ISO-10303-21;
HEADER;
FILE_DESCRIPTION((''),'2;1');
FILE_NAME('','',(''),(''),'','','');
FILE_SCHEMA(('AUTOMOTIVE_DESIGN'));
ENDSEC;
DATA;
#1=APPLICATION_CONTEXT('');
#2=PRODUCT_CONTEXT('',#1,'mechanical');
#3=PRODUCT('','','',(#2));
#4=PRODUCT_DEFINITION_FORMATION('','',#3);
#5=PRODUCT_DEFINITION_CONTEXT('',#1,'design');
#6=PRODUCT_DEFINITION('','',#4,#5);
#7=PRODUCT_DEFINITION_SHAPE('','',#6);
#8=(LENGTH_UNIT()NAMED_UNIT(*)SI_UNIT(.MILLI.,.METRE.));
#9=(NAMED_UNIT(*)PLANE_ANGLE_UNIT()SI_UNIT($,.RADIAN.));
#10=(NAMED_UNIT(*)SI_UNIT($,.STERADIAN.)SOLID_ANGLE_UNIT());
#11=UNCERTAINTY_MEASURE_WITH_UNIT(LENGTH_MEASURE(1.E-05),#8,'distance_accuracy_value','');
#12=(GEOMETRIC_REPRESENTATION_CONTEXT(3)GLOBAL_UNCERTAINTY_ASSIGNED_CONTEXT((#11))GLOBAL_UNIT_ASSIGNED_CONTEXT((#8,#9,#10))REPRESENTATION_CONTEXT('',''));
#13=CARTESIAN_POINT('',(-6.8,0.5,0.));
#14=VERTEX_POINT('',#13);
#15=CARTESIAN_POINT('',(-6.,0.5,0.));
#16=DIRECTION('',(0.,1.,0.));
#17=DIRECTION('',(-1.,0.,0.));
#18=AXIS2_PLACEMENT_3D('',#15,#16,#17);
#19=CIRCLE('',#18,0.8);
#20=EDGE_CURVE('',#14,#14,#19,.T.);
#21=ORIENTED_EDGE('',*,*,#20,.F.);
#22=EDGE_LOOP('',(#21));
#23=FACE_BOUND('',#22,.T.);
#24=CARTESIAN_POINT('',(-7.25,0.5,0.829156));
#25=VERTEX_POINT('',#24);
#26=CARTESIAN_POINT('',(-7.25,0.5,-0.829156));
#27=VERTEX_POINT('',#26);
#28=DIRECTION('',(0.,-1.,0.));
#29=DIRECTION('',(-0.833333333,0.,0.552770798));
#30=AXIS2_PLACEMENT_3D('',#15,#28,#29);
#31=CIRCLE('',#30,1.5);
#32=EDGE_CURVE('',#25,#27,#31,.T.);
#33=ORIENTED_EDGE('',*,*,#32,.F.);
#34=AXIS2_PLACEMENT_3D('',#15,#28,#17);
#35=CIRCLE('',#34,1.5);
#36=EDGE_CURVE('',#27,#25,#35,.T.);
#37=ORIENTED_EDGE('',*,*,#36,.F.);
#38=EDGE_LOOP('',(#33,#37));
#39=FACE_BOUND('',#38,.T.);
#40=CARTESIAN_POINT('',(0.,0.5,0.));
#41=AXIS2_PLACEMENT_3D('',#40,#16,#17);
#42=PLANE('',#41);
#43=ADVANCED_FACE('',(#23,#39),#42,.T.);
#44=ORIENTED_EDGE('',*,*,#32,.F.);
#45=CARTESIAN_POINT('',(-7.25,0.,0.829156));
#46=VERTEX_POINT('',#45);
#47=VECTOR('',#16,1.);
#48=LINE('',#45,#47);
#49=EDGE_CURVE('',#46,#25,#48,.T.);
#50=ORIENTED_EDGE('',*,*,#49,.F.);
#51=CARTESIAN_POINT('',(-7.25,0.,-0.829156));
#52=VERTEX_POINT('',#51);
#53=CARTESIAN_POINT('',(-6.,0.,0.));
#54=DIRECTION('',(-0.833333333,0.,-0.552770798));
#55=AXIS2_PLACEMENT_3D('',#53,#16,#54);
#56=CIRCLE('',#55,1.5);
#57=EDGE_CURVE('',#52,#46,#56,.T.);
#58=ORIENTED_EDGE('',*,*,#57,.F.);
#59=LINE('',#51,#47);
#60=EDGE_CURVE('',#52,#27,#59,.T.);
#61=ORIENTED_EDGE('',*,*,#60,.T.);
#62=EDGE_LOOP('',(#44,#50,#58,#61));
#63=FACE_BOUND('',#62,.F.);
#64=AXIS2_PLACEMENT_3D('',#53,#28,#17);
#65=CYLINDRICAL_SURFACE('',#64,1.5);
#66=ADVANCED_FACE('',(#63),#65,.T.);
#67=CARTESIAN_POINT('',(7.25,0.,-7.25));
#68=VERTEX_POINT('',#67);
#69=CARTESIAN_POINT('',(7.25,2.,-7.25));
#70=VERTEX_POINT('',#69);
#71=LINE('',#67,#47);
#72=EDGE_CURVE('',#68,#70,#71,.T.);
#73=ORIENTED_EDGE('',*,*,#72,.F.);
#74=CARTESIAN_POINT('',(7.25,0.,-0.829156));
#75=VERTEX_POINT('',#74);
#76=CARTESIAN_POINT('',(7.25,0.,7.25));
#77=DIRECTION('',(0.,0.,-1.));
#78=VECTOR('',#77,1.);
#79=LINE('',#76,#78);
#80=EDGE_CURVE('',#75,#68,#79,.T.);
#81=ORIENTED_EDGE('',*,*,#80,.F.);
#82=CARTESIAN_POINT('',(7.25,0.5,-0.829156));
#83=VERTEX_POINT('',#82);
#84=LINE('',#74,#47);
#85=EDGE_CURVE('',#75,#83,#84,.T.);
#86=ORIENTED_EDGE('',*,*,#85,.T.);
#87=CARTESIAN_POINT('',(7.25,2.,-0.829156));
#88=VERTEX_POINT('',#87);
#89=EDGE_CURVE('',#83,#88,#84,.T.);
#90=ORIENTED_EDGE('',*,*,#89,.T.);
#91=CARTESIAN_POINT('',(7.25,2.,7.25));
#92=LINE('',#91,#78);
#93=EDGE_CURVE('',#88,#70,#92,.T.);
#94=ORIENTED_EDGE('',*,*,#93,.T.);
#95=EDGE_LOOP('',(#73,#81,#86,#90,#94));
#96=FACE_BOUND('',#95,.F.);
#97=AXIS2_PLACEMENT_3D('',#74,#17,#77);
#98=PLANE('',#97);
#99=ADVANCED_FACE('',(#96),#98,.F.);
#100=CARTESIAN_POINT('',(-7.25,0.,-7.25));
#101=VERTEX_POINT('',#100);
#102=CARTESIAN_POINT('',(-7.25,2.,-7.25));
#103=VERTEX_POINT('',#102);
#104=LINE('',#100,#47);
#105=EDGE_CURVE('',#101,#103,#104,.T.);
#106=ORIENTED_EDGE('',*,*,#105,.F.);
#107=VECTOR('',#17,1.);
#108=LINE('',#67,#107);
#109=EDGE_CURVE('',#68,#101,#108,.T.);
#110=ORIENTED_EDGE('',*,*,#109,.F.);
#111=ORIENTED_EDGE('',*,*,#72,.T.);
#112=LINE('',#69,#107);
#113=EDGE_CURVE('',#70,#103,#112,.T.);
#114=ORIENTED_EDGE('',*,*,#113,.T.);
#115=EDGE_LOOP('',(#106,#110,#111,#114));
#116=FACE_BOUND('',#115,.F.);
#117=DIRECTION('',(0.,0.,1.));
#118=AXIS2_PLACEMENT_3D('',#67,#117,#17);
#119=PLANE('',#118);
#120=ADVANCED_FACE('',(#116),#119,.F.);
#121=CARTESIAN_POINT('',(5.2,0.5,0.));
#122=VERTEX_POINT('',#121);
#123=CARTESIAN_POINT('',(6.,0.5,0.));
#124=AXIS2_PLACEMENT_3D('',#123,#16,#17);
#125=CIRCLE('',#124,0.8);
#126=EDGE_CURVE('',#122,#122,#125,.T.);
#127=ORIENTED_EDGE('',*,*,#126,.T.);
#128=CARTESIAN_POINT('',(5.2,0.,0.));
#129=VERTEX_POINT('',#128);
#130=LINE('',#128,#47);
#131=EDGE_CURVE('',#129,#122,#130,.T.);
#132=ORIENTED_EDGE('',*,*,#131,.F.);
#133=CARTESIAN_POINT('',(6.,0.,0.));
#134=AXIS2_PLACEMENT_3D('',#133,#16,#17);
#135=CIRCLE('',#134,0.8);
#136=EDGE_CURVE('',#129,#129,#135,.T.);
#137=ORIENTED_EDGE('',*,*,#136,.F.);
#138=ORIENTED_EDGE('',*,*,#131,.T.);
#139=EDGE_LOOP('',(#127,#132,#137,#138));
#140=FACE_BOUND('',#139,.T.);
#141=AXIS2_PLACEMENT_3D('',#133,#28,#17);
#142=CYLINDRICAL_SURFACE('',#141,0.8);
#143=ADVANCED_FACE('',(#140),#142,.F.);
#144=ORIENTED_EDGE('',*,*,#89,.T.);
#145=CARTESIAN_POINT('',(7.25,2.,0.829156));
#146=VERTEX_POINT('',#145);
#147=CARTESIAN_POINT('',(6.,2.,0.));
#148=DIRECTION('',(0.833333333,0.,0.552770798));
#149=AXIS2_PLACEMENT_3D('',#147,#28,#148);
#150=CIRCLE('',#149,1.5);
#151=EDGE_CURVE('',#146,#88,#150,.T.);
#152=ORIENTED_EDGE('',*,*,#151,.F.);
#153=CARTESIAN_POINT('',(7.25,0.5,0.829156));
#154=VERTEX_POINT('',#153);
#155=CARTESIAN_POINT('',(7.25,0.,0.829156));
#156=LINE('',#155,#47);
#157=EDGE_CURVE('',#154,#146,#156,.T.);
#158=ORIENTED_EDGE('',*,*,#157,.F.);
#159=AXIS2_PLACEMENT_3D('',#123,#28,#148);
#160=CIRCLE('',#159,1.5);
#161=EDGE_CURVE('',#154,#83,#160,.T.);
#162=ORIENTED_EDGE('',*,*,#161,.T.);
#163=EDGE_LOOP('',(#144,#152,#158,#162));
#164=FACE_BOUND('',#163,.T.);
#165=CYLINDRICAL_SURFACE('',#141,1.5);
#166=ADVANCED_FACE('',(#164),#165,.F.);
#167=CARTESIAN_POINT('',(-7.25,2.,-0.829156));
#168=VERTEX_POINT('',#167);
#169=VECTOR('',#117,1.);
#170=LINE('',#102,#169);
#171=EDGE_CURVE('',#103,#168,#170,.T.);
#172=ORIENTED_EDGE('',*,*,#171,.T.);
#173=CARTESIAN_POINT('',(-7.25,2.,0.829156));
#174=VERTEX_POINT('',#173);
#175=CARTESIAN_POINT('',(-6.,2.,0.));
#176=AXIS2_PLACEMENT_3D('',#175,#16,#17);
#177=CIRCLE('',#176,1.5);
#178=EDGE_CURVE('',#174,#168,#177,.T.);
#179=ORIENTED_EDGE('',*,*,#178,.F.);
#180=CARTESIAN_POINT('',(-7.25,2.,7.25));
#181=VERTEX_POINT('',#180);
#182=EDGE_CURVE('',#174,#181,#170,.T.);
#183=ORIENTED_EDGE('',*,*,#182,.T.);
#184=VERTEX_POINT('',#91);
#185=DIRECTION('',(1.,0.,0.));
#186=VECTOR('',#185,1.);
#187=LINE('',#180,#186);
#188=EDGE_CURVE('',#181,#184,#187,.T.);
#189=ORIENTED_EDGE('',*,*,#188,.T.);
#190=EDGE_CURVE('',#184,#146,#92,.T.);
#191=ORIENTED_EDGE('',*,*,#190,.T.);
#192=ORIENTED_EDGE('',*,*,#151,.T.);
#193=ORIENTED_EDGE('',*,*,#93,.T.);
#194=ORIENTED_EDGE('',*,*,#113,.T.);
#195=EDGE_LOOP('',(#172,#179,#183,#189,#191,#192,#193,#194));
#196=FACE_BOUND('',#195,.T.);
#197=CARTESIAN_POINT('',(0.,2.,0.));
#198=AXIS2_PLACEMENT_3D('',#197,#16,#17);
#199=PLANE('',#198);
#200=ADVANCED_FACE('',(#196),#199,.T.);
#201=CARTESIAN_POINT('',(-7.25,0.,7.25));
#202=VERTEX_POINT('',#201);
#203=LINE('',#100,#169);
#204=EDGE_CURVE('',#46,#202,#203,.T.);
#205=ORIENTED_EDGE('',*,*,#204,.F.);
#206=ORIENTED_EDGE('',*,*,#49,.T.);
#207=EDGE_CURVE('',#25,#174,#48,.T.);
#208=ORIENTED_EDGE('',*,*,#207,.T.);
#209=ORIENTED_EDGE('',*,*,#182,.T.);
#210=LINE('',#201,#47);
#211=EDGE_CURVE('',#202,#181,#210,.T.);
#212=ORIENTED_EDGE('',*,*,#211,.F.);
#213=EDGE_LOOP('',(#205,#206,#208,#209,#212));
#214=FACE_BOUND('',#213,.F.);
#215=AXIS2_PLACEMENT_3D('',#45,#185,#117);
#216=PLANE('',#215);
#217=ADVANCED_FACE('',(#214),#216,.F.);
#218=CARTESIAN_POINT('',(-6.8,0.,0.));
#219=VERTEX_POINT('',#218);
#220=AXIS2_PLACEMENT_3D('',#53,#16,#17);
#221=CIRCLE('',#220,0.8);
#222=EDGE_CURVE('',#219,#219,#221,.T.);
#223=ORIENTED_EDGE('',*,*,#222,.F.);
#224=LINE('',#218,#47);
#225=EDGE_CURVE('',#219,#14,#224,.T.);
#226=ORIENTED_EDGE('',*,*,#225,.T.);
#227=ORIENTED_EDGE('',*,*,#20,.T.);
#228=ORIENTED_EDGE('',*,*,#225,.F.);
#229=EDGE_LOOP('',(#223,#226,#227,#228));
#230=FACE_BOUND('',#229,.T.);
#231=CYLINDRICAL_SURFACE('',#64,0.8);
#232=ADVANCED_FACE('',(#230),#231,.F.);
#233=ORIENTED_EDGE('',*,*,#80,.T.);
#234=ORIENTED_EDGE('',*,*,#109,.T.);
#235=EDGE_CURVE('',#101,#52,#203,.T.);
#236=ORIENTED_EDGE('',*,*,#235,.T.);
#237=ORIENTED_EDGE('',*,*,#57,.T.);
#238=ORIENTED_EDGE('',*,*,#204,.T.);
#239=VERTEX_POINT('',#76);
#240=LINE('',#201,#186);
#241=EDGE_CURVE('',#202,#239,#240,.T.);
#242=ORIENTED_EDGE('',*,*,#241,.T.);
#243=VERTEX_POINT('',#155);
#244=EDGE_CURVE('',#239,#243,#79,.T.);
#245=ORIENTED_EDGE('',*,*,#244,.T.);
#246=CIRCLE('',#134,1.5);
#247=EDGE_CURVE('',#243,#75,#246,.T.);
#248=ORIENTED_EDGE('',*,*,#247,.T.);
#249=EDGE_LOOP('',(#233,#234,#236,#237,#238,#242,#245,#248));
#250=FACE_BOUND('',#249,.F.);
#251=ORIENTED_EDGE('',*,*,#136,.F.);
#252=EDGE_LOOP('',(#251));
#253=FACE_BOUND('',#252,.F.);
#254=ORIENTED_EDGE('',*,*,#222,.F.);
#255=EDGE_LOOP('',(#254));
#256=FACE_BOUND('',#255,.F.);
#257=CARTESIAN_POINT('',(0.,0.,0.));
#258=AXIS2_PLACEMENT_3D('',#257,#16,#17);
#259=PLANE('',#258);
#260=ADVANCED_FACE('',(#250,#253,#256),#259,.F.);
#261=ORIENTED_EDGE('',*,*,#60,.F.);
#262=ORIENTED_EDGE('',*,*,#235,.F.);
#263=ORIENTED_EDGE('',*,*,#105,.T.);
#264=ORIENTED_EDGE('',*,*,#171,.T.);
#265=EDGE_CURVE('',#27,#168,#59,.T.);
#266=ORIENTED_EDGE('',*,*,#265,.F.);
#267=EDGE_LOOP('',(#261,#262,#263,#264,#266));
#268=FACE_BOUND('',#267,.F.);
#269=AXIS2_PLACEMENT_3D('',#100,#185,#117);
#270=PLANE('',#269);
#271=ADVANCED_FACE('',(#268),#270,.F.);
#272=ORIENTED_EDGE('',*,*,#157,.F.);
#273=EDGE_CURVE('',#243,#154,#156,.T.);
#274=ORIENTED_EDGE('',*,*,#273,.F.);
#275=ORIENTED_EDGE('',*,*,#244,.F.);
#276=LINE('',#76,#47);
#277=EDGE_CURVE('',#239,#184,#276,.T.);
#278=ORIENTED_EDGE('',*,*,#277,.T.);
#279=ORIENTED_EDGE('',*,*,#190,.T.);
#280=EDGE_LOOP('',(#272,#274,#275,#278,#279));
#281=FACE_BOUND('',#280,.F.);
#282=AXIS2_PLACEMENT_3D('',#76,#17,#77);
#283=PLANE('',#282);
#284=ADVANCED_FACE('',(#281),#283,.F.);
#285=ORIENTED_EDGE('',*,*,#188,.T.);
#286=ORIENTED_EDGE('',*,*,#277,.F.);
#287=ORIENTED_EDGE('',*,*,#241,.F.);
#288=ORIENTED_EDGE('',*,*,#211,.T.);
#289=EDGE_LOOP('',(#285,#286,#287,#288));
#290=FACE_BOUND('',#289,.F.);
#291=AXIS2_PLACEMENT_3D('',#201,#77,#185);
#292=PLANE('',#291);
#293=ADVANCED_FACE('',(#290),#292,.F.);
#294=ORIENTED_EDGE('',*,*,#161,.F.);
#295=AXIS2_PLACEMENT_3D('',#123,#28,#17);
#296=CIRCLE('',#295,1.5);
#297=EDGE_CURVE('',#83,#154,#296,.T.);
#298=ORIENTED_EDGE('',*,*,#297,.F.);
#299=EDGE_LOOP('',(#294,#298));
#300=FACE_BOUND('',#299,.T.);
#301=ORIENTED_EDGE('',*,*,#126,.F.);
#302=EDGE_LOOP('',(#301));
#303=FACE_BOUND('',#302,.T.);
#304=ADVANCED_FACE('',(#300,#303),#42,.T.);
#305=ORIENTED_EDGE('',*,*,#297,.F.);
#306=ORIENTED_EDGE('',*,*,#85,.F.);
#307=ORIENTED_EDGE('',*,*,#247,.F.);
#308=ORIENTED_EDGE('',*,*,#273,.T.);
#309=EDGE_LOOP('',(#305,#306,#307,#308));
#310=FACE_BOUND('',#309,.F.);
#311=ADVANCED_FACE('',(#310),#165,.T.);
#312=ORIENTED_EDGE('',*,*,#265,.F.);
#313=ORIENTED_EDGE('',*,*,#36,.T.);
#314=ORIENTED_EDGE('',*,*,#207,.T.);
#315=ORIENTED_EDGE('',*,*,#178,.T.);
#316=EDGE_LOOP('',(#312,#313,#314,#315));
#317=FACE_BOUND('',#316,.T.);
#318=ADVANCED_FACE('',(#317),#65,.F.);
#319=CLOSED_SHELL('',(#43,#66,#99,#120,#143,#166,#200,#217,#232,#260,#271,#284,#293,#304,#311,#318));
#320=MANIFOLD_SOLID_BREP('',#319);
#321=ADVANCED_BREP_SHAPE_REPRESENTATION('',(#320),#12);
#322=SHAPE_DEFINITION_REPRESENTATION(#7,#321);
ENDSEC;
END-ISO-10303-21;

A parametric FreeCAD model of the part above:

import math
import FreeCAD as App
import Part
import Sketcher

V = App.Vector
Q = App.Units.Quantity

doc = App.newDocument("Part")
body = doc.addObject("PartDesign::Body", "Body")

sketch1 = body.newObject("Sketcher::SketchObject", "Sketch")
sketch1.AttachmentSupport = (doc.getObject("XZ_Plane"), [""])
sketch1.MapMode = "FlatFace"
sketch1.addGeometry([
    Part.LineSegment(V(-7.25, 0.829156, 0), V(-7.25, 7.25, 0)),
    Part.LineSegment(V(-7.25, 7.25, 0), V(7.25, 7.25, 0)),
    Part.LineSegment(V(7.25, 7.25, 0), V(7.25, 0.829156, 0)),
    Part.ArcOfCircle(Part.Circle(V(6, 0, 0), V(0, 0, 1), 1.5), math.radians(33.55731), math.radians(326.44269)),
    Part.LineSegment(V(7.25, -0.829156, 0), V(7.25, -7.25, 0)),
    Part.LineSegment(V(7.25, -7.25, 0), V(-7.25, -7.25, 0)),
    Part.LineSegment(V(-7.25, -7.25, 0), V(-7.25, -0.829156, 0)),
    Part.ArcOfCircle(Part.Circle(V(-6, 0, 0), V(0, 0, 1), 1.5), math.radians(-146.44269), math.radians(146.44269)),
], False)
sketch1.addConstraint([
    Sketcher.Constraint("Coincident", 0, 2, 1, 1),
    Sketcher.Constraint("Coincident", 1, 2, 2, 1),
    Sketcher.Constraint("Coincident", 2, 2, 3, 1),
    Sketcher.Constraint("Coincident", 3, 2, 4, 1),
    Sketcher.Constraint("Coincident", 4, 2, 5, 1),
    Sketcher.Constraint("Coincident", 5, 2, 6, 1),
    Sketcher.Constraint("Coincident", 6, 2, 7, 1),
    Sketcher.Constraint("Coincident", 7, 2, 0, 1),
    Sketcher.Constraint("Vertical", 0),
    Sketcher.Constraint("Horizontal", 1),
    Sketcher.Constraint("Vertical", 2),
    Sketcher.Constraint("Vertical", 4),
    Sketcher.Constraint("Horizontal", 5),
    Sketcher.Constraint("Vertical", 6),
    Sketcher.Constraint("Equal", 3, 7),
    Sketcher.Constraint("Symmetric", 3, 3, 7, 3, -1, 1),
    Sketcher.Constraint("Symmetric", 0, 2, 4, 2, -1, 1),
    Sketcher.Constraint("Symmetric", 3, 2, 6, 2, -2),
    Sketcher.Constraint("Horizontal", 2, 2, 7, 2),
    Sketcher.Constraint("Radius", 3, Q("1.5 mm")),
    Sketcher.Constraint("DistanceX", 1, 1, 1, 2, Q("14.5 mm")),
    Sketcher.Constraint("DistanceX", -1, 1, 3, 3, Q("6 mm")),
    Sketcher.Constraint("DistanceY", 4, 2, 1, 2, Q("14.5 mm")),
])
pad1 = body.newObject("PartDesign::Pad", "Pad")
pad1.Profile = sketch1
pad1.Length = 2
pad1.Reversed = True

sketch2 = body.newObject("Sketcher::SketchObject", "Sketch001")
sketch2.AttachmentSupport = (doc.getObject("XZ_Plane"), [""])
sketch2.MapMode = "FlatFace"
sketch2.addGeometry([
    Part.Circle(V(-6, 0, 0), V(0, 0, 1), 1.5),
    Part.Circle(V(-6, 0, 0), V(0, 0, 1), 0.8),
    Part.Circle(V(6, 0, 0), V(0, 0, 1), 1.5),
    Part.Circle(V(6, 0, 0), V(0, 0, 1), 0.8),
], False)
sketch2.addConstraint([
    Sketcher.Constraint("Coincident", 1, 3, 0, 3),
    Sketcher.Constraint("Coincident", 3, 3, 2, 3),
    Sketcher.Constraint("Equal", 0, 2),
    Sketcher.Constraint("Equal", 1, 3),
    Sketcher.Constraint("Symmetric", 0, 3, 2, 3, -1, 1),
    Sketcher.Constraint("PointOnObject", 0, 3, -1),
    Sketcher.Constraint("Diameter", 0, Q("3 mm")),
    Sketcher.Constraint("Diameter", 1, Q("1.6 mm")),
    Sketcher.Constraint("DistanceX", 0, 3, -1, 1, Q("6 mm")),
])
pad2 = body.newObject("PartDesign::Pad", "Pad001")
pad2.Profile = sketch2
pad2.Length = 0.5
pad2.Reversed = True

doc.recompute()
